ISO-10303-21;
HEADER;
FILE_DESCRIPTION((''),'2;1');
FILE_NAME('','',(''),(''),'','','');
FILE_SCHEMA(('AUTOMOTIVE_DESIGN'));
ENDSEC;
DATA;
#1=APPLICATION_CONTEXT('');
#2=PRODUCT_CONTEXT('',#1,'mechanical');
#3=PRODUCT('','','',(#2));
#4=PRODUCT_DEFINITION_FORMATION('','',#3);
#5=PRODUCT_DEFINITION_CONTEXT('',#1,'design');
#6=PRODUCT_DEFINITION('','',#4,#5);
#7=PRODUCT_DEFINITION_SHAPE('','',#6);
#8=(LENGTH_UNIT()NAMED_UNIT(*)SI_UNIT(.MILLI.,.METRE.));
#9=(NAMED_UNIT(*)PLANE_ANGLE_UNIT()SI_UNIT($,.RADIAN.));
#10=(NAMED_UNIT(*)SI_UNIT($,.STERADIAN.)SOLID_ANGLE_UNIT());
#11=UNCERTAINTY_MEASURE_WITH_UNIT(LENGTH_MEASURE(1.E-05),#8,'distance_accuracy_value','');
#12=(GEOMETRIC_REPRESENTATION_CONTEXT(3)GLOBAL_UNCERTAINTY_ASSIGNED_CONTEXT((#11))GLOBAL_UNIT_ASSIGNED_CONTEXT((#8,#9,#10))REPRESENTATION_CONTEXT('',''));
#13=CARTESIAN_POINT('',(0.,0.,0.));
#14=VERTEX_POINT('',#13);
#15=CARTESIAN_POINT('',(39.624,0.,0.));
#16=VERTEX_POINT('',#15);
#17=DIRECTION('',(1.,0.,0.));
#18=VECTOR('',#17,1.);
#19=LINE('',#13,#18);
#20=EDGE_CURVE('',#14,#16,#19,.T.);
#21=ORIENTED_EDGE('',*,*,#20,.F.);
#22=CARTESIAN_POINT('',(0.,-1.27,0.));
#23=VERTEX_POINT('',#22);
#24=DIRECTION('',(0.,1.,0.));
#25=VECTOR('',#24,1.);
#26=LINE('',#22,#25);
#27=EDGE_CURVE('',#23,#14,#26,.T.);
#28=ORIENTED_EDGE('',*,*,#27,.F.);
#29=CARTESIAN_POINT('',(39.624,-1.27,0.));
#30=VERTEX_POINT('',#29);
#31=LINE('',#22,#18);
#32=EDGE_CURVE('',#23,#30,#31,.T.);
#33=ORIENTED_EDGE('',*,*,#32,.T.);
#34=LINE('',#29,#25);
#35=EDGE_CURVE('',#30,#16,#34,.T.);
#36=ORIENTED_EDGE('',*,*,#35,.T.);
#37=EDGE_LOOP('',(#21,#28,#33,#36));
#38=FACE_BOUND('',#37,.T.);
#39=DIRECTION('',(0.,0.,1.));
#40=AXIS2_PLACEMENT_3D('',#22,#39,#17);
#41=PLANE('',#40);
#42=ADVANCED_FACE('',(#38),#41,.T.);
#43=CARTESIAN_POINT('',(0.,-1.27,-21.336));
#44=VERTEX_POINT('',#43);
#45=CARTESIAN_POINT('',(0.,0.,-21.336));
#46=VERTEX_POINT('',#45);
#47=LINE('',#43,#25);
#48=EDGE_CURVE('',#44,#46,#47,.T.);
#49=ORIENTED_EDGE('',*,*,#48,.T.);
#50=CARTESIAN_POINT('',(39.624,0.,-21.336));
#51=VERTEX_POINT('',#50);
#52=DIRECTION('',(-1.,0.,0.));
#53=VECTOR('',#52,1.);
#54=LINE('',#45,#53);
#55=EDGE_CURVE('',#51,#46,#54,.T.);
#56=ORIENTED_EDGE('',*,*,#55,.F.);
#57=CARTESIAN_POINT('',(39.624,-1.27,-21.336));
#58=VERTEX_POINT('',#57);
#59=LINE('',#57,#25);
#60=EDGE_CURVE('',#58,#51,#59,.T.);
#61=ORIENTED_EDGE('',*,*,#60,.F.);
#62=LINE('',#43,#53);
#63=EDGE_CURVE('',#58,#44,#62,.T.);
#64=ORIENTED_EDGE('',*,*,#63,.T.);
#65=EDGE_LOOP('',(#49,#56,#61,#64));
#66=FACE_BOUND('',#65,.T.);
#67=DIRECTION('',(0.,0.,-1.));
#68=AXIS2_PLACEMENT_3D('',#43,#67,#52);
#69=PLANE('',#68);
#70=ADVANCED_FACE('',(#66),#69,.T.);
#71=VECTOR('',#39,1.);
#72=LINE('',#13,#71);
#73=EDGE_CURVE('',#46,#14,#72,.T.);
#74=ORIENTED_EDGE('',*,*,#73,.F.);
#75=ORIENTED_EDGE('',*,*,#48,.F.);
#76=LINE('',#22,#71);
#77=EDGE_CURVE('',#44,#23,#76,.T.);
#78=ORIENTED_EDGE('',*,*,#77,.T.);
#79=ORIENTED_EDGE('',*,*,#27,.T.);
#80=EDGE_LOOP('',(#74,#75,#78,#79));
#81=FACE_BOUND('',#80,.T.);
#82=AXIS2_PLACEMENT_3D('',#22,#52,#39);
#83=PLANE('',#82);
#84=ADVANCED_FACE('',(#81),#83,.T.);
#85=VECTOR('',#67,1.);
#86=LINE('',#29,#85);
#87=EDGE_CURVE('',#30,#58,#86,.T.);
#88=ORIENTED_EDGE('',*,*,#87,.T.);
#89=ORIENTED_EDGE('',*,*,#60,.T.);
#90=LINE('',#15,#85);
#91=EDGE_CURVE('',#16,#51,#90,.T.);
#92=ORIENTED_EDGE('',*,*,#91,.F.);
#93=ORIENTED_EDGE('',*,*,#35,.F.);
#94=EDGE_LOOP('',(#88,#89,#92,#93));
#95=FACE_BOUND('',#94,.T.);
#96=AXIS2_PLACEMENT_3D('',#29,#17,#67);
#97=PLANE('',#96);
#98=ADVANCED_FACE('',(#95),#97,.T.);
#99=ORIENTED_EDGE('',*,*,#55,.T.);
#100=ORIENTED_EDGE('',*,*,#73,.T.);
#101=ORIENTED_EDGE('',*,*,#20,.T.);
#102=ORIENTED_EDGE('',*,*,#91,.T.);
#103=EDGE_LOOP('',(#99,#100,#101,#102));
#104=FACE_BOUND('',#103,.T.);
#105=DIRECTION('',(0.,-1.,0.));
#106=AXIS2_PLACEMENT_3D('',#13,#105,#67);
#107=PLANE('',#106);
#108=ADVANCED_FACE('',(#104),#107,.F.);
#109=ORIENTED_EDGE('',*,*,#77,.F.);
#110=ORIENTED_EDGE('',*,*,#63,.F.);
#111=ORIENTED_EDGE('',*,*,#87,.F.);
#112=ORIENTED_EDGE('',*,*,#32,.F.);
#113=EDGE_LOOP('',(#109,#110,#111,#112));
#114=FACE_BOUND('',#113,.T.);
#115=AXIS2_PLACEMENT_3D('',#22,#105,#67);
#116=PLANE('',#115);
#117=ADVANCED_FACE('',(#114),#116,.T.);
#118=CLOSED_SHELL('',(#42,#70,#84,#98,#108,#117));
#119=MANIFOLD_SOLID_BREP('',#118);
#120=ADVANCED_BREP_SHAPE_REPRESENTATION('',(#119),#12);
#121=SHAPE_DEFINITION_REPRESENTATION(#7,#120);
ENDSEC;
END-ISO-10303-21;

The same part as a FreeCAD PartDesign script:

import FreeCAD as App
import Part
import Sketcher
from FreeCAD import Vector
Q = App.Units.Quantity


def add_polygon(sketch, points):
    """Adds a closed chain of lines whose ends are joined by coincident constraints."""
    first, n = sketch.GeometryCount, len(points)
    for a, b in zip(points, points[1:] + points[:1]):
        sketch.addGeometry(Part.LineSegment(App.Vector(*a, 0), App.Vector(*b, 0)), False)
    for i in range(n):
        sketch.addConstraint(Sketcher.Constraint("Coincident", first + i, 2, first + (i + 1) % n, 1))

doc = App.newDocument("Part")
params = doc.addObject("Spreadsheet::Sheet", "Params")
for row, (alias, value) in enumerate([
    ("sketch1_width", "1.56 in"),
    ("sketch1_height", "0.84 in"),
    ("pad1_length", "0.05 in"),
], start=1):
    params.set(f"A{row}", alias)
    params.set(f"B{row}", "=" + value)
    params.setAlias(f"B{row}", alias)

body = doc.addObject("PartDesign::Body", "Body")

sketch1 = body.newObject("Sketcher::SketchObject", "Sketch")
sketch1.AttachmentSupport = (doc.getObject("XZ_Plane"), [""])
sketch1.MapMode = "FlatFace"
add_polygon(sketch1, [(0, -21), (0, 0), (40, 0), (40, -21)])
sketch1.addConstraint([
    Sketcher.Constraint("Vertical", 0),
    Sketcher.Constraint("Horizontal", 1),
    Sketcher.Constraint("Vertical", 2),
    Sketcher.Constraint("Horizontal", 3),
    Sketcher.Constraint("Coincident", 0, 2, -1, 1),
    Sketcher.Constraint("DistanceX", 1, 1, 1, 2, Q("1.56 in")),
    Sketcher.Constraint("DistanceY", 0, 1, 0, 2, Q("0.84 in")),
])
sketch1.setExpression("Constraints[9]", "Params.sketch1_width")
sketch1.setExpression("Constraints[10]", "Params.sketch1_height")
pad1 = body.newObject("PartDesign::Pad", "Pad")
pad1.Profile = sketch1
pad1.setExpression("Length", "Params.pad1_length")

doc.recompute()
